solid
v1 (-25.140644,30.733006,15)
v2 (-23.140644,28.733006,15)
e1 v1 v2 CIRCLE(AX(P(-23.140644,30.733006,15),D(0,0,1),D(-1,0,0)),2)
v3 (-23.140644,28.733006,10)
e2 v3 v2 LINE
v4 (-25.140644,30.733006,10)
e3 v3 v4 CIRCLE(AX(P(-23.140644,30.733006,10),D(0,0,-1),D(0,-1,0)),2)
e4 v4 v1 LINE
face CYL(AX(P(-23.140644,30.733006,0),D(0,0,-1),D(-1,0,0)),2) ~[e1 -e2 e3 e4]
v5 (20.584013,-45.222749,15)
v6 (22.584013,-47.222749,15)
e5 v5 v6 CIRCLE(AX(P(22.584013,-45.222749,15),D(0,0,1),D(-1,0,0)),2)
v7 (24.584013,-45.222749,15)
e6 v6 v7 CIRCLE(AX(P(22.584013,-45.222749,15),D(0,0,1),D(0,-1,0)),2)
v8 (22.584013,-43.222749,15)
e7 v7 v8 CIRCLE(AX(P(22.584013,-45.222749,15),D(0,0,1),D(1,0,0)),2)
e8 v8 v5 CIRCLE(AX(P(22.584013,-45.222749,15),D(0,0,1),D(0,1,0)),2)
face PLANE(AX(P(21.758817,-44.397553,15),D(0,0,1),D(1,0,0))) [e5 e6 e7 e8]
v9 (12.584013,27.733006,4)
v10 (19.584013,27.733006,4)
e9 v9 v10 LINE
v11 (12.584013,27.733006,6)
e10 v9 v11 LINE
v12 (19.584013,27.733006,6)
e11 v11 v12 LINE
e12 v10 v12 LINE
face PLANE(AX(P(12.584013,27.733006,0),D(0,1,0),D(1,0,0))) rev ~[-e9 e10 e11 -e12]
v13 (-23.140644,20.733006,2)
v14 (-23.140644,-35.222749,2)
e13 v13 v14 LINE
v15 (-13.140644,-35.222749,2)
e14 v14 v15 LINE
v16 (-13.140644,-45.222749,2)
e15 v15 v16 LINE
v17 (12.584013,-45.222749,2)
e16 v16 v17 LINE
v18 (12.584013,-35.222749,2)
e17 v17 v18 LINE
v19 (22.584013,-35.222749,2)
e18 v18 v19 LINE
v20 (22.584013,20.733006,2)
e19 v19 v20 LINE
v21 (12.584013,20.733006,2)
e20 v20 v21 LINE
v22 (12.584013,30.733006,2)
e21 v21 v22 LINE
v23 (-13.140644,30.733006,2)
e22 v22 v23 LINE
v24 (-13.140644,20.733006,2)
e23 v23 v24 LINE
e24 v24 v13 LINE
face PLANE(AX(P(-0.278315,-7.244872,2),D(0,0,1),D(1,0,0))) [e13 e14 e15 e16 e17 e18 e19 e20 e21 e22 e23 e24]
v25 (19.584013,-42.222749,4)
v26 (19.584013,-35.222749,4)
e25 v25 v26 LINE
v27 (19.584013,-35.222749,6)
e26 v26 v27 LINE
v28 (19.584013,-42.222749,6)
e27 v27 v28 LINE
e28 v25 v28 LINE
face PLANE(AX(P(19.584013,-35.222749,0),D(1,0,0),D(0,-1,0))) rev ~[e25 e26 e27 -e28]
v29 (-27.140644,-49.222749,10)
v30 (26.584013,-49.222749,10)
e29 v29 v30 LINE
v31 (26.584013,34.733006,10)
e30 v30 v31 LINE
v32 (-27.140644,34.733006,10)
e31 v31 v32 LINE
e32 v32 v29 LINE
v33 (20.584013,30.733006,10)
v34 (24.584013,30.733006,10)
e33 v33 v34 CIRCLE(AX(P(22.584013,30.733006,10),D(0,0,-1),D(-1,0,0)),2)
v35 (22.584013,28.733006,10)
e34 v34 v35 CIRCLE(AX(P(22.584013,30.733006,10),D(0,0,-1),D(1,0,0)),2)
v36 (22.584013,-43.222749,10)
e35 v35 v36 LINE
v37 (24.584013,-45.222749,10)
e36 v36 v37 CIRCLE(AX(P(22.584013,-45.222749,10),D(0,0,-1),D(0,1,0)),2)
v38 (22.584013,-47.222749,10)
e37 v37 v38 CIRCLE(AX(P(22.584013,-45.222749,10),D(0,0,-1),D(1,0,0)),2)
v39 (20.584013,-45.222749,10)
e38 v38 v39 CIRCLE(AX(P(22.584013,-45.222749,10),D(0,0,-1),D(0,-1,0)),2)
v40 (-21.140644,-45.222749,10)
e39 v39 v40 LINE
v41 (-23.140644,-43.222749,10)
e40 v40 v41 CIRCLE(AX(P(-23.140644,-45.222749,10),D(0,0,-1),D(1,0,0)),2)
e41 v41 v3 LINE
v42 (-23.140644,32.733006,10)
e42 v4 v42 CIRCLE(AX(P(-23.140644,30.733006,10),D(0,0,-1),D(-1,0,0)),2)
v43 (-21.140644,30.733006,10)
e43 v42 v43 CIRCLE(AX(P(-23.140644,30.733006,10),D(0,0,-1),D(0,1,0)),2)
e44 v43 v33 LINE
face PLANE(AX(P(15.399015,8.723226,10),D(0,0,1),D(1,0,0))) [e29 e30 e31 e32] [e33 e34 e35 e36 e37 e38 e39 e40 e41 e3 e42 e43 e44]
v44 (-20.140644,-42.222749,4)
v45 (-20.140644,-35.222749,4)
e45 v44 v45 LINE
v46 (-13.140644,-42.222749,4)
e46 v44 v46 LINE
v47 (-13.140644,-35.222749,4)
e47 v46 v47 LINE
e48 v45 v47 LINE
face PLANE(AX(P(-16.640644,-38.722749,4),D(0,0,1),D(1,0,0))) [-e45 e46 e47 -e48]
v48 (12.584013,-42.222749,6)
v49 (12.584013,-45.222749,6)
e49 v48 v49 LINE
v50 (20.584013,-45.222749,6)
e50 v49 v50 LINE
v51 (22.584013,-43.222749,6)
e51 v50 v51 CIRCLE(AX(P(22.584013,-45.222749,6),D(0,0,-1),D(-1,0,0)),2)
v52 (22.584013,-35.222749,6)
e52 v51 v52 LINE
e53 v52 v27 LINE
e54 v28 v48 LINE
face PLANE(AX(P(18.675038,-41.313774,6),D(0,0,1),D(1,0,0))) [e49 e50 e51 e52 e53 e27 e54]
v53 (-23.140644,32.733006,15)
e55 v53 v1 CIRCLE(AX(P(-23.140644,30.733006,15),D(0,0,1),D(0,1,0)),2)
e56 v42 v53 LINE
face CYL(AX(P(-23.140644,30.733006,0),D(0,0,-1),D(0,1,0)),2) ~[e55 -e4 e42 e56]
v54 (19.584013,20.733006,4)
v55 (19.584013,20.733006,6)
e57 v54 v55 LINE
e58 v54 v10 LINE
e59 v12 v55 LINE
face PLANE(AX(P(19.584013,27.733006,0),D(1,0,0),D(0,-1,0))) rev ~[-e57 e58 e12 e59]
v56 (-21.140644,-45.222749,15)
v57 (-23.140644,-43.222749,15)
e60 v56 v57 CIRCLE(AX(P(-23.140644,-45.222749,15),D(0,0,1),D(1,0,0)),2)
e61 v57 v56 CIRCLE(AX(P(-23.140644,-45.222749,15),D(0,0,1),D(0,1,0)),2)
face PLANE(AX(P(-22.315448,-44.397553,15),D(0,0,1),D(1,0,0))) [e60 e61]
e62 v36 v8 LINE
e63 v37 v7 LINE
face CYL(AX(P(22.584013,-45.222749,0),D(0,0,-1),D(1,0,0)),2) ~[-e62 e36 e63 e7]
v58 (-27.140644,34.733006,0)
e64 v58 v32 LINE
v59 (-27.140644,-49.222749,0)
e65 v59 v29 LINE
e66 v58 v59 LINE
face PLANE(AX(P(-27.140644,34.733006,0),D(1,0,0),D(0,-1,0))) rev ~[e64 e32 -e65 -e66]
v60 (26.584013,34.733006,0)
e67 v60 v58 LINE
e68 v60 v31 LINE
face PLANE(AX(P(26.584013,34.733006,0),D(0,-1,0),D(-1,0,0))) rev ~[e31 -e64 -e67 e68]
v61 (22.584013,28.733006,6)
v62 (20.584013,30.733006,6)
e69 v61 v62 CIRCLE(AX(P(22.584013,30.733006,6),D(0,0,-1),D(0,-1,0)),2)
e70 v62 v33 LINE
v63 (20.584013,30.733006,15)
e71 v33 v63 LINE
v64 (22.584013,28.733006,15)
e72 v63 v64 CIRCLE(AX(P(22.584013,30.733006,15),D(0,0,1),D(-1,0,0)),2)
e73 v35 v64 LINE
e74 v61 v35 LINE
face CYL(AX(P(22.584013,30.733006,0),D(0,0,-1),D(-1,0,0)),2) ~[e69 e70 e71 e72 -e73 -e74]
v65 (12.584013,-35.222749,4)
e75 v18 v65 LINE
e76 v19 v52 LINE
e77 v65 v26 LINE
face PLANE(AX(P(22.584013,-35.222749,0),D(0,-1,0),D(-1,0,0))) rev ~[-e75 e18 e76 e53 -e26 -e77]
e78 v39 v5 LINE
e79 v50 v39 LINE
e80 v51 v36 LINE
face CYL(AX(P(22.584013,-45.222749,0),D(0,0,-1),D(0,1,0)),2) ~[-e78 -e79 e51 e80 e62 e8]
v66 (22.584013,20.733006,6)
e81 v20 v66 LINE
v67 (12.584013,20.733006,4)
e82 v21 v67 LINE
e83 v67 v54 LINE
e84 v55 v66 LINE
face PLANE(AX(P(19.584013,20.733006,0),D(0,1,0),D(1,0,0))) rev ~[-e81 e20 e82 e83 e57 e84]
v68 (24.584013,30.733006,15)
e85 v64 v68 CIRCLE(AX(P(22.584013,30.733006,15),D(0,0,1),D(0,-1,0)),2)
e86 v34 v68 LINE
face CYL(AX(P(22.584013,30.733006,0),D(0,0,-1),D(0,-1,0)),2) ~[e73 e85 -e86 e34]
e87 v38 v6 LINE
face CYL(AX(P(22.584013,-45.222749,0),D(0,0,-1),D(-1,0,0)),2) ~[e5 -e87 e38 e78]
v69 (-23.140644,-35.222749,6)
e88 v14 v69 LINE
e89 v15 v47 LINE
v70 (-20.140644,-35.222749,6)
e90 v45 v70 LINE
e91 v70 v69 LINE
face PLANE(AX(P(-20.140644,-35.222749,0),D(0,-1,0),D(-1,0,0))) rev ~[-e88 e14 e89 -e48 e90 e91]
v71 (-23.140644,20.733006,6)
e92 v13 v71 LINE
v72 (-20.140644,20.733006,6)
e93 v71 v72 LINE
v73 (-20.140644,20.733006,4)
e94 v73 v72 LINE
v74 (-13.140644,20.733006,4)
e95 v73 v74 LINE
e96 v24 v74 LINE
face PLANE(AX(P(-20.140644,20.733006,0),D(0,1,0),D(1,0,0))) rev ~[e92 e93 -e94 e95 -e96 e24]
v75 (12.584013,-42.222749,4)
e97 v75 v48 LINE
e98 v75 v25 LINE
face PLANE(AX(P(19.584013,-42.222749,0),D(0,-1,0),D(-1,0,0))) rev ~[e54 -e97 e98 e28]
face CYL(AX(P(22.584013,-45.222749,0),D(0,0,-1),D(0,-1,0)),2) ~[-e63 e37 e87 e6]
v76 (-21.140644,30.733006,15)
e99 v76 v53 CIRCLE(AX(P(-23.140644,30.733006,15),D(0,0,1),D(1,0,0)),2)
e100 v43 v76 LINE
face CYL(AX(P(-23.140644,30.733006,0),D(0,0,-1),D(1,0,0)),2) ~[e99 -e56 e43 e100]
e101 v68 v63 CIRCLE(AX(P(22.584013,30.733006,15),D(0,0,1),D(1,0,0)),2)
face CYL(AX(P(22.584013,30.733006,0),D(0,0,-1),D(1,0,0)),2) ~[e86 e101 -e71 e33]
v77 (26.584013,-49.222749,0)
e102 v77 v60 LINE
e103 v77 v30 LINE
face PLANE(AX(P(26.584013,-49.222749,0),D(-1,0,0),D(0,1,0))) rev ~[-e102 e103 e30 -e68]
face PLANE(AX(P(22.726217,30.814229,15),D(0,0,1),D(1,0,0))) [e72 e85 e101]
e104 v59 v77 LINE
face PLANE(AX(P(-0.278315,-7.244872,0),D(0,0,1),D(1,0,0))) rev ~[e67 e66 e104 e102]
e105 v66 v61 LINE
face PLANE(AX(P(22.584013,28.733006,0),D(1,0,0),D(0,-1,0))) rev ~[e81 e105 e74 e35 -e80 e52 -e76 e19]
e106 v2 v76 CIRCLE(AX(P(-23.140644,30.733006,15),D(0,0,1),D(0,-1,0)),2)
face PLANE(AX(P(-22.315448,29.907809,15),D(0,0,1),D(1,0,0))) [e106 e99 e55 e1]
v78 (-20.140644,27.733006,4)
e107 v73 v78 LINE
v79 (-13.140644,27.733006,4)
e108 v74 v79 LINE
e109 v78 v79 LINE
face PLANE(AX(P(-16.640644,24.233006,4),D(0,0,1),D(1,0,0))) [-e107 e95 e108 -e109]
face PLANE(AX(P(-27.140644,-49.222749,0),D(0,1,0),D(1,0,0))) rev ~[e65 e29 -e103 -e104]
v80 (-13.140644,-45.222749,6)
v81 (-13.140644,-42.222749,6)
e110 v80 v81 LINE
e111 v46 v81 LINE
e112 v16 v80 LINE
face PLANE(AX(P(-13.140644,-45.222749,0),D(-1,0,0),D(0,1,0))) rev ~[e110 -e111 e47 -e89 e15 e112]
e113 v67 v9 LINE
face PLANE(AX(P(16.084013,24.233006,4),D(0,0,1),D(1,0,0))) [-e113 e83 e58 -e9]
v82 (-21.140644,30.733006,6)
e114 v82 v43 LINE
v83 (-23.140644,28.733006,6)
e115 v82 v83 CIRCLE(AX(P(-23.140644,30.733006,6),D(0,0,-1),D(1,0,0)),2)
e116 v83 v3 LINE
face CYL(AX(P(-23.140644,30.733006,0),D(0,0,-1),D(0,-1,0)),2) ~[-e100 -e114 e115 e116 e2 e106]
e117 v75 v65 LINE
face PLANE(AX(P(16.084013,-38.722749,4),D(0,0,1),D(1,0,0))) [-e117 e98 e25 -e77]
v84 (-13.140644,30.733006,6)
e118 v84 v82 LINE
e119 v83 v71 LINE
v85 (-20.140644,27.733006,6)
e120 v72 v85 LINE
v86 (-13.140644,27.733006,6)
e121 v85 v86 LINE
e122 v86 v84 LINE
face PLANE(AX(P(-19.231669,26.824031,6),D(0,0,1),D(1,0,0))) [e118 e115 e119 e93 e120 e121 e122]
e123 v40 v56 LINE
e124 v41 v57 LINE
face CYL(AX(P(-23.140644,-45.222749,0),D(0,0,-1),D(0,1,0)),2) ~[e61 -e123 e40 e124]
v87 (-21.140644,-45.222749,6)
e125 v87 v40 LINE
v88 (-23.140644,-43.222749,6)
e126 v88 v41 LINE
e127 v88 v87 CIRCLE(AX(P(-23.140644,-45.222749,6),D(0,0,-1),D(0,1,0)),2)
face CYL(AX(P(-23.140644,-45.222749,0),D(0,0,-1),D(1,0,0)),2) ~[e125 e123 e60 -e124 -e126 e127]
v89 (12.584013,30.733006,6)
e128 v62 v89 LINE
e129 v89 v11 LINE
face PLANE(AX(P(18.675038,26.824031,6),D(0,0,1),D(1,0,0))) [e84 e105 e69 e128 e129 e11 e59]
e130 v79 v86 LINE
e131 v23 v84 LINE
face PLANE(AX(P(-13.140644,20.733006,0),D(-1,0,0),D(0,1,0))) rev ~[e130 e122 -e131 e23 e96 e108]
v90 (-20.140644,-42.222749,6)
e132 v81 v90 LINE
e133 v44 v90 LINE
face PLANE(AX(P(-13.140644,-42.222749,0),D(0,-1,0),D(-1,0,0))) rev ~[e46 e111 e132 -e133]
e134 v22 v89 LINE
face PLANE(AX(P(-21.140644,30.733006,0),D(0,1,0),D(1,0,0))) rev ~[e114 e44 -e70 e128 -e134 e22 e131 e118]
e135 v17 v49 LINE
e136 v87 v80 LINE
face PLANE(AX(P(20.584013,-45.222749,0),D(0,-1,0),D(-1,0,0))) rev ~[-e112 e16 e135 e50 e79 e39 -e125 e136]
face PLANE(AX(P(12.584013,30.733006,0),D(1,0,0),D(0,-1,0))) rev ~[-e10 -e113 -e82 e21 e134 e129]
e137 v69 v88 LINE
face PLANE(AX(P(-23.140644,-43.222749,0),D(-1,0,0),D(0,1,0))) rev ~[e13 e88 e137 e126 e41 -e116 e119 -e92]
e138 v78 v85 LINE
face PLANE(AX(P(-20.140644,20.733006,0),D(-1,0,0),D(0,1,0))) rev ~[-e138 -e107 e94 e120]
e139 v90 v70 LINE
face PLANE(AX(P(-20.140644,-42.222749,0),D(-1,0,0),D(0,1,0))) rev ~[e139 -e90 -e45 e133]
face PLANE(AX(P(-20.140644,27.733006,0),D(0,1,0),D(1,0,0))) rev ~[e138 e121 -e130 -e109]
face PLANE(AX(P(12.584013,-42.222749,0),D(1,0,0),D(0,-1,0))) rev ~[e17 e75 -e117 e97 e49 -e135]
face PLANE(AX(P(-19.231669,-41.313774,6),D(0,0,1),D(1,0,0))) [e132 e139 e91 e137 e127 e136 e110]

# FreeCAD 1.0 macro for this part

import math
import FreeCAD as App
import Part
import Sketcher


def add_polygon(sketch, points):
    """Adds a closed chain of lines whose ends are joined by coincident constraints."""
    first, n = sketch.GeometryCount, len(points)
    for a, b in zip(points, points[1:] + points[:1]):
        sketch.addGeometry(Part.LineSegment(App.Vector(*a, 0), App.Vector(*b, 0)), False)
    for i in range(n):
        sketch.addConstraint(Sketcher.Constraint("Coincident", first + i, 2, first + (i + 1) % n, 1))

doc = App.newDocument("Part")
params = doc.addObject("Spreadsheet::Sheet", "Params")
for row, (alias, value) in enumerate([
    ("sketch1_radius", "2 mm"),
    ("pad1_length", "10 mm"),
    ("sketch2_radius", "2 mm"),
    ("sketch2_width", "8 mm"),
    ("sketch2_width2", "3 mm"),
    ("pad2_length", "6 mm"),
    ("sketch3_radius", "2 mm"),
    ("pad3_length", "15 mm"),
    ("sketch4_width", "7 mm"),
    ("pad4_length", "4 mm"),
    ("sketch5_width", "10 mm"),
    ("pad5_length", "2 mm"),
], start=1):
    params.set(f"A{row}", alias)
    params.set(f"B{row}", "=" + value)
    params.setAlias(f"B{row}", alias)

body = doc.addObject("PartDesign::Body", "Body")

# Sketch on XY plane
sketch1 = doc.addObject("Sketcher::SketchObject", "Sketch")
body.addObject(sketch1)
sketch1.AttachmentSupport = (doc.XY_Plane, [""])
sketch1.MapMode = "FlatFace"
add_polygon(sketch1, [(26.6, 34.7), (-27.1, 34.7), (-27.1, -49.2), (26.6, -49.2)])  # lines 0-3
sketch1.addGeometry(Part.ArcOfCircle(Part.Circle(App.Vector(22.6, -45.2, 0), App.Vector(0, 0, 1), 2), math.radians(180), math.radians(270)), False)  # 4
sketch1.addGeometry(Part.LineSegment(App.Vector(20.6, -45.2, 0), App.Vector(-21.1, -45.2, 0)), False)  # 5
sketch1.addGeometry(Part.ArcOfCircle(Part.Circle(App.Vector(-23.1, -45.2, 0), App.Vector(0, 0, 1), 2), math.radians(90), math.radians(360)), False)  # 6
sketch1.addGeometry(Part.LineSegment(App.Vector(-23.1, -43.2, 0), App.Vector(-23.1, 28.7, 0)), False)  # 7
sketch1.addGeometry(Part.ArcOfCircle(Part.Circle(App.Vector(-23.1, 30.7, 0), App.Vector(0, 0, 1), 2), math.radians(180), math.radians(270)), False)  # 8
sketch1.addGeometry(Part.ArcOfCircle(Part.Circle(App.Vector(-23.1, 30.7, 0), App.Vector(0, 0, 1), 2), math.radians(90), math.radians(180)), False)  # 9
sketch1.addGeometry(Part.ArcOfCircle(Part.Circle(App.Vector(-23.1, 30.7, 0), App.Vector(0, 0, 1), 2), math.radians(0), math.radians(90)), False)  # 10
sketch1.addGeometry(Part.LineSegment(App.Vector(-21.1, 30.7, 0), App.Vector(20.6, 30.7, 0)), False)  # 11
sketch1.addGeometry(Part.ArcOfCircle(Part.Circle(App.Vector(22.6, 30.7, 0), App.Vector(0, 0, 1), 2), math.radians(0), math.radians(180)), False)  # 12
sketch1.addGeometry(Part.ArcOfCircle(Part.Circle(App.Vector(22.6, 30.7, 0), App.Vector(0, 0, 1), 2), math.radians(-90), math.radians(0)), False)  # 13
sketch1.addGeometry(Part.LineSegment(App.Vector(22.6, 28.7, 0), App.Vector(22.6, -43.2, 0)), False)  # 14
sketch1.addGeometry(Part.ArcOfCircle(Part.Circle(App.Vector(22.6, -45.2, 0), App.Vector(0, 0, 1), 2), math.radians(0), math.radians(90)), False)  # 15
sketch1.addGeometry(Part.ArcOfCircle(Part.Circle(App.Vector(22.6, -45.2, 0), App.Vector(0, 0, 1), 2), math.radians(-90), math.radians(0)), False)  # 16
sketch1.addConstraint([
    Sketcher.Constraint("Coincident", 4, 1, 5, 1),
    Sketcher.Constraint("Coincident", 5, 2, 6, 2),
    Sketcher.Constraint("Coincident", 6, 1, 7, 1),
    Sketcher.Constraint("Coincident", 7, 2, 8, 2),
    Sketcher.Constraint("Tangent", 8, 1, 9, 2),
    Sketcher.Constraint("Tangent", 9, 1, 10, 2),
    Sketcher.Constraint("Coincident", 10, 1, 11, 1),
    Sketcher.Constraint("Coincident", 11, 2, 12, 2),
    Sketcher.Constraint("Tangent", 12, 1, 13, 2),
    Sketcher.Constraint("Coincident", 13, 1, 14, 1),
    Sketcher.Constraint("Coincident", 14, 2, 15, 2),
    Sketcher.Constraint("Tangent", 15, 1, 16, 2),
    Sketcher.Constraint("Tangent", 16, 1, 4, 2),
    Sketcher.Constraint("Horizontal", 0),
    Sketcher.Constraint("Vertical", 1),
    Sketcher.Constraint("Horizontal", 2),
    Sketcher.Constraint("Vertical", 3),
    Sketcher.Constraint("Horizontal", 5),
    Sketcher.Constraint("Vertical", 7),
    Sketcher.Constraint("Horizontal", 11),
    Sketcher.Constraint("Vertical", 14),
    Sketcher.Constraint("Coincident", 10, 3, 8, 3),
    Sketcher.Constraint("Coincident", 15, 3, 4, 3),
    Sketcher.Constraint("Equal", 4, 6),
    Sketcher.Constraint("Equal", 6, 8),
    Sketcher.Constraint("Equal", 10, 12),
    Sketcher.Constraint("Equal", 12, 13),
    Sketcher.Constraint("Horizontal", 4, 3, 6, 3),
    Sketcher.Constraint("Horizontal", 10, 3, 12, 3),
    Sketcher.Constraint("Horizontal", 16, 3, 4, 1),
    Sketcher.Constraint("Horizontal", 13, 3, 8, 1),
    Sketcher.Constraint("Horizontal", 8, 1, 10, 1),
    Sketcher.Constraint("Horizontal", 11, 2, 12, 1),
    Sketcher.Constraint("Horizontal", 5, 2, 15, 1),
    Sketcher.Constraint("Vertical", 6, 3, 8, 3),
    Sketcher.Constraint("Vertical", 4, 3, 12, 3),
    Sketcher.Constraint("Vertical", 10, 3, 6, 1),
    Sketcher.Constraint("Vertical", 7, 2, 9, 1),
    Sketcher.Constraint("Vertical", 16, 3, 13, 1),
    Sketcher.Constraint("Vertical", 14, 2, 16, 1),
    Sketcher.Constraint("Radius", 4, 2.0),
    Sketcher.Constraint("DistanceX", 0, 2, 8, 3, 4.0),
    Sketcher.Constraint("DistanceY", 8, 3, 0, 2, 4.0),
    Sketcher.Constraint("DistanceY", 1, 2, 6, 3, 4.0),
    Sketcher.Constraint("DistanceX", 4, 3, 2, 2, 4.0),
    Sketcher.Constraint("DistanceX", 0, 2, 0, 1, 53.724657),
    Sketcher.Constraint("DistanceY", 1, 2, 1, 1, 83.955755),
    Sketcher.Constraint("DistanceY", 4, 3, -1, 1, 45.222749),
    Sketcher.Constraint("DistanceX", -1, 1, 4, 3, 22.584013),
])
sketch1.setExpression("Constraints[44]", "Params.sketch1_radius")
pad1 = doc.addObject("PartDesign::Pad", "Pad")
body.addObject(pad1)
pad1.Profile = sketch1
pad1.setExpression("Length", "Params.pad1_length")

# Sketch on XY plane
sketch2 = doc.addObject("Sketcher::SketchObject", "Sketch001")
body.addObject(sketch2)
sketch2.AttachmentSupport = (doc.XY_Plane, [""])
sketch2.MapMode = "FlatFace"
sketch2.addGeometry([
    Part.LineSegment(App.Vector(-13.1, 30.7, 0), App.Vector(-21.1, 30.7, 0)),  # 0
    Part.ArcOfCircle(Part.Circle(App.Vector(-23.1, 30.7, 0), App.Vector(0, 0, 1), 2), math.radians(-90), math.radians(0)),  # 1
    Part.LineSegment(App.Vector(-23.1, 28.7, 0), App.Vector(-23.1, 20.7, 0)),  # 2
    Part.LineSegment(App.Vector(-23.1, 20.7, 0), App.Vector(-20.1, 20.7, 0)),  # 3
    Part.LineSegment(App.Vector(-20.1, 20.7, 0), App.Vector(-20.1, 27.7, 0)),  # 4
    Part.LineSegment(App.Vector(-20.1, 27.7, 0), App.Vector(-13.1, 27.7, 0)),  # 5
    Part.LineSegment(App.Vector(-13.1, 27.7, 0), App.Vector(-13.1, 30.7, 0)),  # 6
    Part.LineSegment(App.Vector(20.6, 30.7, 0), App.Vector(12.6, 30.7, 0)),  # 7
    Part.LineSegment(App.Vector(12.6, 30.7, 0), App.Vector(12.6, 27.7, 0)),  # 8
    Part.LineSegment(App.Vector(12.6, 27.7, 0), App.Vector(19.6, 27.7, 0)),  # 9
    Part.LineSegment(App.Vector(19.6, 27.7, 0), App.Vector(19.6, 20.7, 0)),  # 10
    Part.LineSegment(App.Vector(19.6, 20.7, 0), App.Vector(22.6, 20.7, 0)),  # 11
    Part.LineSegment(App.Vector(22.6, 20.7, 0), App.Vector(22.6, 28.7, 0)),  # 12
    Part.ArcOfCircle(Part.Circle(App.Vector(22.6, 30.7, 0), App.Vector(0, 0, 1), 2), math.radians(180), math.radians(270)),  # 13
    Part.ArcOfCircle(Part.Circle(App.Vector(22.6, -45.2, 0), App.Vector(0, 0, 1), 2), math.radians(90), math.radians(180)),  # 14
    Part.LineSegment(App.Vector(22.6, -43.2, 0), App.Vector(22.6, -35.2, 0)),  # 15
    Part.LineSegment(App.Vector(22.6, -35.2, 0), App.Vector(19.6, -35.2, 0)),  # 16
    Part.LineSegment(App.Vector(19.6, -35.2, 0), App.Vector(19.6, -42.2, 0)),  # 17
    Part.LineSegment(App.Vector(19.6, -42.2, 0), App.Vector(12.6, -42.2, 0)),  # 18
    Part.LineSegment(App.Vector(12.6, -42.2, 0), App.Vector(12.6, -45.2, 0)),  # 19
    Part.LineSegment(App.Vector(12.6, -45.2, 0), App.Vector(20.6, -45.2, 0)),  # 20
    Part.LineSegment(App.Vector(-20.1, -35.2, 0), App.Vector(-23.1, -35.2, 0)),  # 21
    Part.LineSegment(App.Vector(-23.1, -35.2, 0), App.Vector(-23.1, -43.2, 0)),  # 22
    Part.ArcOfCircle(Part.Circle(App.Vector(-23.1, -45.2, 0), App.Vector(0, 0, 1), 2), math.radians(0), math.radians(90)),  # 23
    Part.LineSegment(App.Vector(-21.1, -45.2, 0), App.Vector(-13.1, -45.2, 0)),  # 24
    Part.LineSegment(App.Vector(-13.1, -45.2, 0), App.Vector(-13.1, -42.2, 0)),  # 25
    Part.LineSegment(App.Vector(-13.1, -42.2, 0), App.Vector(-20.1, -42.2, 0)),  # 26
    Part.LineSegment(App.Vector(-20.1, -42.2, 0), App.Vector(-20.1, -35.2, 0)),  # 27
], False)
sketch2.addConstraint([
    Sketcher.Constraint("Coincident", 0, 2, 1, 2),
    Sketcher.Constraint("Coincident", 1, 1, 2, 1),
    Sketcher.Constraint("Coincident", 2, 2, 3, 1),
    Sketcher.Constraint("Coincident", 3, 2, 4, 1),
    Sketcher.Constraint("Coincident", 4, 2, 5, 1),
    Sketcher.Constraint("Coincident", 5, 2, 6, 1),
    Sketcher.Constraint("Coincident", 6, 2, 0, 1),
    Sketcher.Constraint("Coincident", 7, 2, 8, 1),
    Sketcher.Constraint("Coincident", 8, 2, 9, 1),
    Sketcher.Constraint("Coincident", 9, 2, 10, 1),
    Sketcher.Constraint("Coincident", 10, 2, 11, 1),
    Sketcher.Constraint("Coincident", 11, 2, 12, 1),
    Sketcher.Constraint("Coincident", 12, 2, 13, 2),
    Sketcher.Constraint("Coincident", 13, 1, 7, 1),
    Sketcher.Constraint("Coincident", 14, 1, 15, 1),
    Sketcher.Constraint("Coincident", 15, 2, 16, 1),
    Sketcher.Constraint("Coincident", 16, 2, 17, 1),
    Sketcher.Constraint("Coincident", 17, 2, 18, 1),
    Sketcher.Constraint("Coincident", 18, 2, 19, 1),
    Sketcher.Constraint("Coincident", 19, 2, 20, 1),
    Sketcher.Constraint("Coincident", 20, 2, 14, 2),
    Sketcher.Constraint("Coincident", 21, 2, 22, 1),
    Sketcher.Constraint("Coincident", 22, 2, 23, 2),
    Sketcher.Constraint("Coincident", 23, 1, 24, 1),
    Sketcher.Constraint("Coincident", 24, 2, 25, 1),
    Sketcher.Constraint("Coincident", 25, 2, 26, 1),
    Sketcher.Constraint("Coincident", 26, 2, 27, 1),
    Sketcher.Constraint("Coincident", 27, 2, 21, 1),
    Sketcher.Constraint("Horizontal", 0),
    Sketcher.Constraint("Vertical", 2),
    Sketcher.Constraint("Horizontal", 3),
    Sketcher.Constraint("Vertical", 4),
    Sketcher.Constraint("Horizontal", 5),
    Sketcher.Constraint("Vertical", 6),
    Sketcher.Constraint("Horizontal", 7),
    Sketcher.Constraint("Vertical", 8),
    Sketcher.Constraint("Horizontal", 9),
    Sketcher.Constraint("Vertical", 10),
    Sketcher.Constraint("Horizontal", 11),
    Sketcher.Constraint("Vertical", 12),
    Sketcher.Constraint("Vertical", 15),
    Sketcher.Constraint("Horizontal", 16),
    Sketcher.Constraint("Vertical", 17),
    Sketcher.Constraint("Horizontal", 18),
    Sketcher.Constraint("Vertical", 19),
    Sketcher.Constraint("Horizontal", 20),
    Sketcher.Constraint("Horizontal", 21),
    Sketcher.Constraint("Vertical", 22),
    Sketcher.Constraint("Horizontal", 24),
    Sketcher.Constraint("Vertical", 25),
    Sketcher.Constraint("Horizontal", 26),
    Sketcher.Constraint("Vertical", 27),
    Sketcher.Constraint("Equal", 1, 13),
    Sketcher.Constraint("Equal", 13, 14),
    Sketcher.Constraint("Equal", 14, 23),
    Sketcher.Constraint("Horizontal", 1, 3, 13, 3),
    Sketcher.Constraint("Horizontal", 14, 3, 23, 3),
    Sketcher.Constraint("Horizontal", 13, 3, 0, 2),
    Sketcher.Constraint("Horizontal", 6, 2, 7, 2),
    Sketcher.Constraint("Horizontal", 5, 2, 8, 2),
    Sketcher.Constraint("Horizontal", 3, 2, 10, 2),
    Sketcher.Constraint("Horizontal", 23, 3, 19, 2),
    Sketcher.Constraint("Horizontal", 16, 2, 21, 2),
    Sketcher.Constraint("Horizontal", 20, 2, 23, 1),
    Sketcher.Constraint("Horizontal", 18, 2, 25, 2),
    Sketcher.Constraint("Vertical", 13, 3, 14, 3),
    Sketcher.Constraint("Vertical", 1, 3, 23, 3),
    Sketcher.Constraint("Vertical", 23, 3, 1, 1),
    Sketcher.Constraint("Vertical", 14, 3, 11, 2),
    Sketcher.Constraint("Vertical", 12, 2, 14, 1),
    Sketcher.Constraint("Vertical", 10, 2, 16, 2),
    Sketcher.Constraint("Vertical", 8, 2, 18, 2),
    Sketcher.Constraint("Vertical", 2, 2, 21, 2),
    Sketcher.Constraint("Vertical", 6, 2, 24, 2),
    Sketcher.Constraint("Vertical", 4, 2, 26, 2),
    Sketcher.Constraint("Equal", 0, 7),
    Sketcher.Constraint("Equal", 5, 9),
    Sketcher.Constraint("Equal", 24, 2),
    Sketcher.Constraint("Equal", 26, 4),
    Sketcher.Constraint("Equal", 12, 15),
    Sketcher.Constraint("Equal", 10, 17),
    Sketcher.Constraint("Radius", 1, 2.0),
    Sketcher.Constraint("DistanceX", 0, 2, 0, 1, 8.0),
    Sketcher.Constraint("DistanceX", 3, 1, 3, 2, 3.0),
    Sketcher.Constraint("DistanceY", 14, 3, -1, 1, 45.222749),
    Sketcher.Constraint("DistanceX", 1, 3, -1, 1, 23.140644),
    Sketcher.Constraint("DistanceY", -1, 1, 1, 3, 30.733006),
    Sketcher.Constraint("DistanceX", -1, 1, 13, 3, 22.584013),
])
sketch2.setExpression("Constraints[81]", "Params.sketch2_radius")
sketch2.setExpression("Constraints[82]", "Params.sketch2_width")
sketch2.setExpression("Constraints[83]", "Params.sketch2_width2")
pad2 = doc.addObject("PartDesign::Pad", "Pad001")
body.addObject(pad2)
pad2.Profile = sketch2
pad2.setExpression("Length", "Params.pad2_length")

# Sketch on XY plane
sketch3 = doc.addObject("Sketcher::SketchObject", "Sketch002")
body.addObject(sketch3)
sketch3.AttachmentSupport = (doc.XY_Plane, [""])
sketch3.MapMode = "FlatFace"
sketch3.addGeometry([
    Part.ArcOfCircle(Part.Circle(App.Vector(-23.1, 30.7, 0), App.Vector(0, 0, 1), 2), math.radians(-90), math.radians(0)),  # 0
    Part.ArcOfCircle(Part.Circle(App.Vector(-23.1, 30.7, 0), App.Vector(0, 0, 1), 2), math.radians(0), math.radians(90)),  # 1
    Part.ArcOfCircle(Part.Circle(App.Vector(-23.1, 30.7, 0), App.Vector(0, 0, 1), 2), math.radians(90), math.radians(180)),  # 2
    Part.ArcOfCircle(Part.Circle(App.Vector(-23.1, 30.7, 0), App.Vector(0, 0, 1), 2), math.radians(180), math.radians(270)),  # 3
    Part.ArcOfCircle(Part.Circle(App.Vector(22.6, 30.7, 0), App.Vector(0, 0, 1), 2), math.radians(0), math.radians(180)),  # 4
    Part.ArcOfCircle(Part.Circle(App.Vector(22.6, 30.7, 0), App.Vector(0, 0, 1), 2), math.radians(180), math.radians(270)),  # 5
    Part.ArcOfCircle(Part.Circle(App.Vector(22.6, 30.7, 0), App.Vector(0, 0, 1), 2), math.radians(-90), math.radians(0)),  # 6
    Part.ArcOfCircle(Part.Circle(App.Vector(22.6, -45.2, 0), App.Vector(0, 0, 1), 2), math.radians(-90), math.radians(0)),  # 7
    Part.ArcOfCircle(Part.Circle(App.Vector(22.6, -45.2, 0), App.Vector(0, 0, 1), 2), math.radians(0), math.radians(90)),  # 8
    Part.ArcOfCircle(Part.Circle(App.Vector(22.6, -45.2, 0), App.Vector(0, 0, 1), 2), math.radians(90), math.radians(180)),  # 9
    Part.ArcOfCircle(Part.Circle(App.Vector(22.6, -45.2, 0), App.Vector(0, 0, 1), 2), math.radians(180), math.radians(270)),  # 10
    Part.ArcOfCircle(Part.Circle(App.Vector(-23.1, -45.2, 0), App.Vector(0, 0, 1), 2), math.radians(0), math.radians(90)),  # 11
    Part.ArcOfCircle(Part.Circle(App.Vector(-23.1, -45.2, 0), App.Vector(0, 0, 1), 2), math.radians(90), math.radians(360)),  # 12
], False)
sketch3.addConstraint([
    Sketcher.Constraint("Tangent", 0, 2, 1, 1),
    Sketcher.Constraint("Tangent", 1, 2, 2, 1),
    Sketcher.Constraint("Tangent", 2, 2, 3, 1),
    Sketcher.Constraint("Tangent", 3, 2, 0, 1),
    Sketcher.Constraint("Tangent", 4, 2, 5, 1),
    Sketcher.Constraint("Tangent", 5, 2, 6, 1),
    Sketcher.Constraint("Tangent", 6, 2, 4, 1),
    Sketcher.Constraint("Tangent", 7, 2, 8, 1),
    Sketcher.Constraint("Tangent", 8, 2, 9, 1),
    Sketcher.Constraint("Tangent", 9, 2, 10, 1),
    Sketcher.Constraint("Tangent", 10, 2, 7, 1),
    Sketcher.Constraint("Tangent", 11, 1, 12, 2),
    Sketcher.Constraint("Coincident", 12, 1, 11, 2),
    Sketcher.Constraint("Equal", 0, 1),
    Sketcher.Constraint("Equal", 3, 4),
    Sketcher.Constraint("Equal", 6, 7),
    Sketcher.Constraint("Equal", 7, 8),
    Sketcher.Constraint("Equal", 10, 11),
    Sketcher.Constraint("Horizontal", 3, 3, 4, 3),
    Sketcher.Constraint("Horizontal", 10, 3, 11, 3),
    Sketcher.Constraint("Horizontal", 6, 3, 0, 2),
    Sketcher.Constraint("Horizontal", 0, 2, 2, 2),
    Sketcher.Constraint("Horizontal", 2, 2, 4, 2),
    Sketcher.Constraint("Horizontal", 4, 2, 6, 2),
    Sketcher.Constraint("Horizontal", 12, 3, 7, 2),
    Sketcher.Constraint("Horizontal", 7, 2, 9, 2),
    Sketcher.Constraint("Horizontal", 9, 2, 11, 1),
    Sketcher.Constraint("Vertical", 6, 3, 7, 3),
    Sketcher.Constraint("Vertical", 3, 3, 11, 3),
    Sketcher.Constraint("Vertical", 12, 3, 1, 2),
    Sketcher.Constraint("Vertical", 1, 2, 3, 2),
    Sketcher.Constraint("Vertical", 10, 3, 5, 2),
    Sketcher.Constraint("Vertical", 5, 2, 8, 2),
    Sketcher.Constraint("Vertical", 8, 2, 10, 2),
    Sketcher.Constraint("Vertical", 3, 2, 12, 1),
    Sketcher.Constraint("Radius", 0, 2.0),
    Sketcher.Constraint("DistanceY", 7, 3, -1, 1, 45.222749),
    Sketcher.Constraint("DistanceX", 0, 3, -1, 1, 23.140644),
    Sketcher.Constraint("DistanceY", -1, 1, 0, 3, 30.733006),
    Sketcher.Constraint("DistanceX", -1, 1, 4, 3, 22.584013),
])
sketch3.setExpression("Constraints[35]", "Params.sketch3_radius")
pad3 = doc.addObject("PartDesign::Pad", "Pad002")
body.addObject(pad3)
pad3.Profile = sketch3
pad3.setExpression("Length", "Params.pad3_length")

# Sketch on XY plane
sketch4 = doc.addObject("Sketcher::SketchObject", "Sketch003")
body.addObject(sketch4)
sketch4.AttachmentSupport = (doc.XY_Plane, [""])
sketch4.MapMode = "FlatFace"
add_polygon(sketch4, [(-20, 28), (-20, 21), (-13, 21), (-13, 28)])  # lines 0-3
add_polygon(sketch4, [(13, 28), (13, 21), (20, 21), (20, 28)])  # lines 4-7
add_polygon(sketch4, [(13, -35), (13, -42), (20, -42), (20, -35)])  # lines 8-11
add_polygon(sketch4, [(-20, -35), (-20, -42), (-13, -42), (-13, -35)])  # lines 12-15
sketch4.addConstraint([
    Sketcher.Constraint("Vertical", 0),
    Sketcher.Constraint("Horizontal", 1),
    Sketcher.Constraint("Vertical", 2),
    Sketcher.Constraint("Horizontal", 3),
    Sketcher.Constraint("Vertical", 4),
    Sketcher.Constraint("Horizontal", 5),
    Sketcher.Constraint("Vertical", 6),
    Sketcher.Constraint("Horizontal", 7),
    Sketcher.Constraint("Vertical", 8),
    Sketcher.Constraint("Horizontal", 9),
    Sketcher.Constraint("Vertical", 10),
    Sketcher.Constraint("Horizontal", 11),
    Sketcher.Constraint("Vertical", 12),
    Sketcher.Constraint("Horizontal", 13),
    Sketcher.Constraint("Vertical", 14),
    Sketcher.Constraint("Horizontal", 15),
    Sketcher.Constraint("Horizontal", 1, 2, 4, 2),
    Sketcher.Constraint("Horizontal", 3, 2, 6, 2),
    Sketcher.Constraint("Horizontal", 9, 2, 12, 2),
    Sketcher.Constraint("Horizontal", 11, 2, 14, 2),
    Sketcher.Constraint("Vertical", 7, 2, 8, 2),
    Sketcher.Constraint("Vertical", 6, 2, 9, 2),
    Sketcher.Constraint("Vertical", 3, 2, 12, 2),
    Sketcher.Constraint("Vertical", 2, 2, 13, 2),
    Sketcher.Constraint("Equal", 3, 5),
    Sketcher.Constraint("Equal", 15, 0),
    Sketcher.Constraint("Equal", 6, 8),
    Sketcher.Constraint("DistanceX", 1, 1, 1, 2, 7.0),
    Sketcher.Constraint("DistanceY", 8, 2, -1, 1, 42.222749),
    Sketcher.Constraint("DistanceX", 0, 2, -1, 1, 20.140644),
    Sketcher.Constraint("DistanceY", -1, 1, 0, 2, 20.733006),
    Sketcher.Constraint("DistanceX", -1, 1, 4, 2, 12.584013),
])
sketch4.setExpression("Constraints[43]", "Params.sketch4_width")
pad4 = doc.addObject("PartDesign::Pad", "Pad003")
body.addObject(pad4)
pad4.Profile = sketch4
pad4.setExpression("Length", "Params.pad4_length")

# Sketch on XY plane
sketch5 = doc.addObject("Sketcher::SketchObject", "Sketch004")
body.addObject(sketch5)
sketch5.AttachmentSupport = (doc.XY_Plane, [""])
sketch5.MapMode = "FlatFace"
add_polygon(sketch5, [(13, 31), (-13, 31), (-13, 21), (-23, 21), (-23, -35), (-13, -35), (-13, -45), (13, -45), (13, -35), (23, -35), (23, 21), (13, 21)])  # lines 0-11
sketch5.addConstraint([
    Sketcher.Constraint("Horizontal", 0),
    Sketcher.Constraint("Vertical", 1),
    Sketcher.Constraint("Horizontal", 2),
    Sketcher.Constraint("Vertical", 3),
    Sketcher.Constraint("Horizontal", 4),
    Sketcher.Constraint("Vertical", 5),
    Sketcher.Constraint("Horizontal", 6),
    Sketcher.Constraint("Vertical", 7),
    Sketcher.Constraint("Horizontal", 8),
    Sketcher.Constraint("Vertical", 9),
    Sketcher.Constraint("Horizontal", 10),
    Sketcher.Constraint("Vertical", 11),
    Sketcher.Constraint("Horizontal", 4, 2, 7, 2),
    Sketcher.Constraint("Horizontal", 2, 2, 9, 2),
    Sketcher.Constraint("Vertical", 1, 2, 4, 2),
    Sketcher.Constraint("Vertical", 7, 2, 10, 2),
    Sketcher.Constraint("Equal", 4, 8),
    Sketcher.Constraint("Equal", 10, 1),
    Sketcher.Constraint("Equal", 1, 5),
    Sketcher.Constraint("DistanceX", 2, 2, 2, 1, 10.0),
    Sketcher.Constraint("DistanceX", 0, 2, 0, 1, 25.724657),
    Sketcher.Constraint("DistanceY", 3, 2, 3, 1, 55.955755),
    Sketcher.Constraint("DistanceY", 3, 2, -1, 1, 35.222749),
    Sketcher.Constraint("DistanceX", 0, 2, -1, 1, 13.140644),
])
sketch5.setExpression("Constraints[31]", "Params.sketch5_width")
pad5 = doc.addObject("PartDesign::Pad", "Pad004")
body.addObject(pad5)
pad5.Profile = sketch5
pad5.setExpression("Length", "Params.pad5_length")

doc.recompute()
